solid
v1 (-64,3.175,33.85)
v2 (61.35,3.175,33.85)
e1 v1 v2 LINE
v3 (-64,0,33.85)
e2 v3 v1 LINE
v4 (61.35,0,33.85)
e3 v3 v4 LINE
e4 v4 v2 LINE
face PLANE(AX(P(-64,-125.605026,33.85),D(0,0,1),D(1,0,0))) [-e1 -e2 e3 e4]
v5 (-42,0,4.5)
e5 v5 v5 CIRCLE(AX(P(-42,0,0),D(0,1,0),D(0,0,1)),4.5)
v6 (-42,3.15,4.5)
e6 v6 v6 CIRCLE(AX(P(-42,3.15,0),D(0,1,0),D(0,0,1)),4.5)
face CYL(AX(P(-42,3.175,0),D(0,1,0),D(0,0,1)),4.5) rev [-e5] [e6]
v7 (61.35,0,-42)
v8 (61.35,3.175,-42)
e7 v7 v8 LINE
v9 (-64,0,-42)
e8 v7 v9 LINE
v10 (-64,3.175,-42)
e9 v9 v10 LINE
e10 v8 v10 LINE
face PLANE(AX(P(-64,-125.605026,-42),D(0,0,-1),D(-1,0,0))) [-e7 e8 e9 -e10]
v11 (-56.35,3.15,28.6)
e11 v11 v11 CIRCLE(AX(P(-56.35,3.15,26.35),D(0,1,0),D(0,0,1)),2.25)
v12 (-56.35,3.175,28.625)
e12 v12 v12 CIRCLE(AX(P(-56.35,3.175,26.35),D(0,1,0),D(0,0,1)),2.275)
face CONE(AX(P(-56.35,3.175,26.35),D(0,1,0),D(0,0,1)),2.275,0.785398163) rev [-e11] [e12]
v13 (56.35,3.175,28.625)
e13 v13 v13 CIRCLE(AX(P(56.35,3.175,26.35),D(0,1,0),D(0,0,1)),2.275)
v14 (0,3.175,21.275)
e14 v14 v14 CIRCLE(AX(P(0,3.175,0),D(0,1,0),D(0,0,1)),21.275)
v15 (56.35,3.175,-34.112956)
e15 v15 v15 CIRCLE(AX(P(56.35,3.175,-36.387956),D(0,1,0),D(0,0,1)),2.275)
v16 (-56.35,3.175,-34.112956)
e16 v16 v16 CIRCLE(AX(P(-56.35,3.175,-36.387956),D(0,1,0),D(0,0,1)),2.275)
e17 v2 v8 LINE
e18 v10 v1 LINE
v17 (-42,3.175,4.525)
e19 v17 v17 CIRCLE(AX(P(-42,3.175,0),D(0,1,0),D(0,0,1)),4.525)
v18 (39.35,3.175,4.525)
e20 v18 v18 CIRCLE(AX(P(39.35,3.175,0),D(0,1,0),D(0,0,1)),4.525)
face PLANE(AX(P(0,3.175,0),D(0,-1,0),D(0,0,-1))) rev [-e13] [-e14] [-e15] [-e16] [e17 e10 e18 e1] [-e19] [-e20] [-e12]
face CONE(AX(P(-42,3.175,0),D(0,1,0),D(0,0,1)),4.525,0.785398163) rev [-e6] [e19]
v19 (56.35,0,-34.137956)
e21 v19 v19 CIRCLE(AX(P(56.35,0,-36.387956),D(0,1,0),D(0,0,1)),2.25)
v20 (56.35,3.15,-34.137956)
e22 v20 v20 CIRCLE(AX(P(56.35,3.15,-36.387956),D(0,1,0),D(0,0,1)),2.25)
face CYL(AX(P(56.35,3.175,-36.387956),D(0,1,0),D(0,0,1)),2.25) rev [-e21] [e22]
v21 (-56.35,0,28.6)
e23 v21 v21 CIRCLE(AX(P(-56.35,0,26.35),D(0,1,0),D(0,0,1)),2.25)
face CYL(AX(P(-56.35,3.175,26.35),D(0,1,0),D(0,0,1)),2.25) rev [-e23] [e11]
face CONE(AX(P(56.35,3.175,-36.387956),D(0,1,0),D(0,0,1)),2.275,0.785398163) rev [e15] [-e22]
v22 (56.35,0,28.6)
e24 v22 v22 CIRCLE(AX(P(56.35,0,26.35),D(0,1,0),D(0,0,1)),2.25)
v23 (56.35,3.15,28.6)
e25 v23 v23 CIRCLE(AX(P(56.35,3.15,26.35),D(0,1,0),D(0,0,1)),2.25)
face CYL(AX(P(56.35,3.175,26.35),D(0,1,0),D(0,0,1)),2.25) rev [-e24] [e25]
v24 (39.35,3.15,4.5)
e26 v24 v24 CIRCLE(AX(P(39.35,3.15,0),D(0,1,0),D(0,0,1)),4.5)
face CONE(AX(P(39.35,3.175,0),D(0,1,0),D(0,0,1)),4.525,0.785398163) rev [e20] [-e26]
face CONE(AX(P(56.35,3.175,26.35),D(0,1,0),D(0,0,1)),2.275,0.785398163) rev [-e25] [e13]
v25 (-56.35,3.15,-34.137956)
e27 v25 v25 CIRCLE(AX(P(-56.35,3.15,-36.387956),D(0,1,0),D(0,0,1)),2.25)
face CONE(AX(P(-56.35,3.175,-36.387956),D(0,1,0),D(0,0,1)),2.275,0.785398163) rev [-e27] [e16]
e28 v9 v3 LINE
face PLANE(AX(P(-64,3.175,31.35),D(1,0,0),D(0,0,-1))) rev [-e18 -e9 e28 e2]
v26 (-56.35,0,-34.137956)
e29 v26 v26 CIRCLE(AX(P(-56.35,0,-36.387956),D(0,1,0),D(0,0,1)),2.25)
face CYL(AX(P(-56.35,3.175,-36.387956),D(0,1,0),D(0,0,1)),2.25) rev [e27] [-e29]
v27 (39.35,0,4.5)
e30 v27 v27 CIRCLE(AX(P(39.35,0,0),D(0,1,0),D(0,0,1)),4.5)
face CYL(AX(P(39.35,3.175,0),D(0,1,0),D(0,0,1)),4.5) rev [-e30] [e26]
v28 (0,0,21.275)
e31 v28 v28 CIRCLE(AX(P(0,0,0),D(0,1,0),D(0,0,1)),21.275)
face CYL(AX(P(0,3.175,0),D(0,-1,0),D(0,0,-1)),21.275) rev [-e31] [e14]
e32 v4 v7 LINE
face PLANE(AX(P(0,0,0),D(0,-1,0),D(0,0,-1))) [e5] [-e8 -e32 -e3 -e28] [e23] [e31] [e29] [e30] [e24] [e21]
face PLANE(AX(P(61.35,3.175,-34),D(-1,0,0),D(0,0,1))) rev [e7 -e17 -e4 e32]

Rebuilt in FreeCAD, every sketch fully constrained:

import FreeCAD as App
import Part
import Sketcher
from FreeCAD import Vector
Q = App.Units.Quantity


def add_polygon(sketch, points):
    """Adds a closed chain of lines whose ends are joined by coincident constraints."""
    first, n = sketch.GeometryCount, len(points)
    for a, b in zip(points, points[1:] + points[:1]):
        sketch.addGeometry(Part.LineSegment(App.Vector(*a, 0), App.Vector(*b, 0)), False)
    for i in range(n):
        sketch.addConstraint(Sketcher.Constraint("Coincident", first + i, 2, first + (i + 1) % n, 1))

doc = App.newDocument("Part")
body = doc.addObject("PartDesign::Body", "Body")

sketch1 = doc.addObject("Sketcher::SketchObject", "Sketch")
body.addObject(sketch1)
sketch1.AttachmentSupport = (doc.XZ_Plane, [""])
sketch1.MapMode = "FlatFace"
add_polygon(sketch1, [(-64, -34), (-64, 31.35), (61.35, 31.35), (61.35, -34)])
sketch1.addGeometry(Part.Circle(Vector(0, 0, 0), Vector(0, 0, 1), 21.275), False)
sketch1.addConstraint([
    Sketcher.Constraint("Vertical", 0),
    Sketcher.Constraint("Horizontal", 1),
    Sketcher.Constraint("Vertical", 2),
    Sketcher.Constraint("Horizontal", 3),
    Sketcher.Constraint("Coincident", 4, 3, -1, 1),
    Sketcher.Constraint("Diameter", 4, 42.55),
    Sketcher.Constraint("DistanceX", 0, 2, -1, 1, 64.0),
    Sketcher.Constraint("DistanceY", 2, 2, -1, 1, 34.0),
    Sketcher.Constraint("DistanceX", 1, 1, 1, 2, 125.35),
    Sketcher.Constraint("DistanceY", 0, 1, 0, 2, 65.35),
])
pad1 = doc.addObject("PartDesign::Pad", "Pad")
body.addObject(pad1)
pad1.Profile = sketch1
pad1.Length = 3.175
pad1.Reversed = True

sketch2 = doc.addObject("Sketcher::SketchObject", "Sketch001")
body.addObject(sketch2)
sketch2.AttachmentSupport = (doc.YZ_Plane, [""])
sketch2.MapMode = "FlatFace"
sketch2.AttachmentOffset = App.Placement(Vector(0, 0, -42), App.Rotation())
add_polygon(sketch2, [(0, 0), (3.175, 0), (3.175, 4.525), (3.15, 4.5), (0, 4.5)])
sketch2.addConstraint([
    Sketcher.Constraint("Horizontal", 0),
    Sketcher.Constraint("Vertical", 1),
    Sketcher.Constraint("Horizontal", 3),
    Sketcher.Constraint("Vertical", 4),
    Sketcher.Constraint("Coincident", 4, 2, -1, 1),
    Sketcher.Constraint("Angle", 2, Q("-135 deg")),
    Sketcher.Constraint("DistanceY", 4, 2, 4, 1, 4.5),
    Sketcher.Constraint("DistanceX", 3, 2, 3, 1, 3.15),
    Sketcher.Constraint("DistanceX", 0, 1, 0, 2, 3.175),
])
groove = doc.addObject("PartDesign::Groove", "Groove")
body.addObject(groove)
groove.Profile = sketch2
groove.ReferenceAxis = (sketch2, ["H_Axis"])
groove.Angle = 360
doc.recompute()

linearpattern = doc.addObject("PartDesign::LinearPattern", "LinearPattern")
body.addObject(linearpattern)
linearpattern.Originals = [groove]
linearpattern.Direction = (doc.X_Axis, [""])
linearpattern.Mode = "offset"
linearpattern.Offset = 81.35
linearpattern.Occurrences = 2
body.Tip = linearpattern

sketch3 = doc.addObject("Sketcher::SketchObject", "Sketch002")
body.addObject(sketch3)
sketch3.AttachmentSupport = (doc.XZ_Plane, [""])
sketch3.MapMode = "FlatFace"
sketch3.AttachmentOffset = App.Placement(Vector(0, 0, -3.175), App.Rotation())
add_polygon(sketch3, [(-64, -42), (-64, -34), (61.35, -34), (61.35, -42)])
add_polygon(sketch3, [(-64, 31.35), (-64, 33.85), (61.35, 33.85), (61.35, 31.35)])
sketch3.addConstraint([
    Sketcher.Constraint("Vertical", 0),
    Sketcher.Constraint("Horizontal", 1),
    Sketcher.Constraint("Vertical", 2),
    Sketcher.Constraint("Horizontal", 3),
    Sketcher.Constraint("Vertical", 4),
    Sketcher.Constraint("Horizontal", 5),
    Sketcher.Constraint("Vertical", 6),
    Sketcher.Constraint("Horizontal", 7),
    Sketcher.Constraint("Vertical", 3, 2, 4, 2),
    Sketcher.Constraint("Vertical", 2, 2, 5, 2),
    Sketcher.Constraint("DistanceY", 0, 1, 0, 2, 8.0),
    Sketcher.Constraint("DistanceY", 4, 1, 4, 2, 2.5),
    Sketcher.Constraint("DistanceX", 0, 2, -1, 1, 64.0),
    Sketcher.Constraint("DistanceY", 0, 2, -1, 1, 34.0),
    Sketcher.Constraint("DistanceX", 1, 1, 1, 2, 125.35),
    Sketcher.Constraint("DistanceY", -1, 1, 4, 2, 33.85),
])
pad2 = doc.addObject("PartDesign::Pad", "Pad001")
body.addObject(pad2)
pad2.Profile = sketch3
pad2.Length = 3.175

sketch4 = doc.addObject("Sketcher::SketchObject", "Sketch003")
body.addObject(sketch4)
sketch4.AttachmentSupport = (doc.XZ_Plane, [""])
sketch4.MapMode = "FlatFace"
sketch4.AttachmentOffset = App.Placement(Vector(0, 0, -3.175), App.Rotation())
sketch4.addGeometry([
    Part.Circle(Vector(-56.35, -36.387956, 0), Vector(0, 0, 1), 2.25),
    Part.Circle(Vector(-56.35, 26.35, 0), Vector(0, 0, 1), 2.25),
    Part.Circle(Vector(56.35, 26.35, 0), Vector(0, 0, 1), 2.25),
    Part.Circle(Vector(56.35, -36.387956, 0), Vector(0, 0, 1), 2.25),
], False)
sketch4.addConstraint([
    Sketcher.Constraint("Equal", 0, 1),
    Sketcher.Constraint("Equal", 1, 2),
    Sketcher.Constraint("Equal", 2, 3),
    Sketcher.Constraint("Symmetric", 1, 3, 2, 3, -2),
    Sketcher.Constraint("Symmetric", 0, 3, 3, 3, -2),
    Sketcher.Constraint("Vertical", 0, 3, 1, 3),
    Sketcher.Constraint("Diameter", 0, 4.5),
    Sketcher.Constraint("DistanceX", 1, 3, 2, 3, 112.7),
    Sketcher.Constraint("DistanceY", -1, 1, 1, 3, 26.35),
    Sketcher.Constraint("DistanceY", 0, 3, -1, 1, 36.387956),
])
doc.recompute()
hole = doc.addObject("PartDesign::Hole", "Hole")
body.addObject(hole)
hole.Profile = sketch4
hole.ThreadType = "None"
hole.Diameter = 4.5
hole.DepthType = "ThroughAll"
hole.HoleCutType = "Countersink"
hole.HoleCutDiameter = 4.55
hole.HoleCutCountersinkAngle = 90
hole.Reversed = True

doc.recompute()
